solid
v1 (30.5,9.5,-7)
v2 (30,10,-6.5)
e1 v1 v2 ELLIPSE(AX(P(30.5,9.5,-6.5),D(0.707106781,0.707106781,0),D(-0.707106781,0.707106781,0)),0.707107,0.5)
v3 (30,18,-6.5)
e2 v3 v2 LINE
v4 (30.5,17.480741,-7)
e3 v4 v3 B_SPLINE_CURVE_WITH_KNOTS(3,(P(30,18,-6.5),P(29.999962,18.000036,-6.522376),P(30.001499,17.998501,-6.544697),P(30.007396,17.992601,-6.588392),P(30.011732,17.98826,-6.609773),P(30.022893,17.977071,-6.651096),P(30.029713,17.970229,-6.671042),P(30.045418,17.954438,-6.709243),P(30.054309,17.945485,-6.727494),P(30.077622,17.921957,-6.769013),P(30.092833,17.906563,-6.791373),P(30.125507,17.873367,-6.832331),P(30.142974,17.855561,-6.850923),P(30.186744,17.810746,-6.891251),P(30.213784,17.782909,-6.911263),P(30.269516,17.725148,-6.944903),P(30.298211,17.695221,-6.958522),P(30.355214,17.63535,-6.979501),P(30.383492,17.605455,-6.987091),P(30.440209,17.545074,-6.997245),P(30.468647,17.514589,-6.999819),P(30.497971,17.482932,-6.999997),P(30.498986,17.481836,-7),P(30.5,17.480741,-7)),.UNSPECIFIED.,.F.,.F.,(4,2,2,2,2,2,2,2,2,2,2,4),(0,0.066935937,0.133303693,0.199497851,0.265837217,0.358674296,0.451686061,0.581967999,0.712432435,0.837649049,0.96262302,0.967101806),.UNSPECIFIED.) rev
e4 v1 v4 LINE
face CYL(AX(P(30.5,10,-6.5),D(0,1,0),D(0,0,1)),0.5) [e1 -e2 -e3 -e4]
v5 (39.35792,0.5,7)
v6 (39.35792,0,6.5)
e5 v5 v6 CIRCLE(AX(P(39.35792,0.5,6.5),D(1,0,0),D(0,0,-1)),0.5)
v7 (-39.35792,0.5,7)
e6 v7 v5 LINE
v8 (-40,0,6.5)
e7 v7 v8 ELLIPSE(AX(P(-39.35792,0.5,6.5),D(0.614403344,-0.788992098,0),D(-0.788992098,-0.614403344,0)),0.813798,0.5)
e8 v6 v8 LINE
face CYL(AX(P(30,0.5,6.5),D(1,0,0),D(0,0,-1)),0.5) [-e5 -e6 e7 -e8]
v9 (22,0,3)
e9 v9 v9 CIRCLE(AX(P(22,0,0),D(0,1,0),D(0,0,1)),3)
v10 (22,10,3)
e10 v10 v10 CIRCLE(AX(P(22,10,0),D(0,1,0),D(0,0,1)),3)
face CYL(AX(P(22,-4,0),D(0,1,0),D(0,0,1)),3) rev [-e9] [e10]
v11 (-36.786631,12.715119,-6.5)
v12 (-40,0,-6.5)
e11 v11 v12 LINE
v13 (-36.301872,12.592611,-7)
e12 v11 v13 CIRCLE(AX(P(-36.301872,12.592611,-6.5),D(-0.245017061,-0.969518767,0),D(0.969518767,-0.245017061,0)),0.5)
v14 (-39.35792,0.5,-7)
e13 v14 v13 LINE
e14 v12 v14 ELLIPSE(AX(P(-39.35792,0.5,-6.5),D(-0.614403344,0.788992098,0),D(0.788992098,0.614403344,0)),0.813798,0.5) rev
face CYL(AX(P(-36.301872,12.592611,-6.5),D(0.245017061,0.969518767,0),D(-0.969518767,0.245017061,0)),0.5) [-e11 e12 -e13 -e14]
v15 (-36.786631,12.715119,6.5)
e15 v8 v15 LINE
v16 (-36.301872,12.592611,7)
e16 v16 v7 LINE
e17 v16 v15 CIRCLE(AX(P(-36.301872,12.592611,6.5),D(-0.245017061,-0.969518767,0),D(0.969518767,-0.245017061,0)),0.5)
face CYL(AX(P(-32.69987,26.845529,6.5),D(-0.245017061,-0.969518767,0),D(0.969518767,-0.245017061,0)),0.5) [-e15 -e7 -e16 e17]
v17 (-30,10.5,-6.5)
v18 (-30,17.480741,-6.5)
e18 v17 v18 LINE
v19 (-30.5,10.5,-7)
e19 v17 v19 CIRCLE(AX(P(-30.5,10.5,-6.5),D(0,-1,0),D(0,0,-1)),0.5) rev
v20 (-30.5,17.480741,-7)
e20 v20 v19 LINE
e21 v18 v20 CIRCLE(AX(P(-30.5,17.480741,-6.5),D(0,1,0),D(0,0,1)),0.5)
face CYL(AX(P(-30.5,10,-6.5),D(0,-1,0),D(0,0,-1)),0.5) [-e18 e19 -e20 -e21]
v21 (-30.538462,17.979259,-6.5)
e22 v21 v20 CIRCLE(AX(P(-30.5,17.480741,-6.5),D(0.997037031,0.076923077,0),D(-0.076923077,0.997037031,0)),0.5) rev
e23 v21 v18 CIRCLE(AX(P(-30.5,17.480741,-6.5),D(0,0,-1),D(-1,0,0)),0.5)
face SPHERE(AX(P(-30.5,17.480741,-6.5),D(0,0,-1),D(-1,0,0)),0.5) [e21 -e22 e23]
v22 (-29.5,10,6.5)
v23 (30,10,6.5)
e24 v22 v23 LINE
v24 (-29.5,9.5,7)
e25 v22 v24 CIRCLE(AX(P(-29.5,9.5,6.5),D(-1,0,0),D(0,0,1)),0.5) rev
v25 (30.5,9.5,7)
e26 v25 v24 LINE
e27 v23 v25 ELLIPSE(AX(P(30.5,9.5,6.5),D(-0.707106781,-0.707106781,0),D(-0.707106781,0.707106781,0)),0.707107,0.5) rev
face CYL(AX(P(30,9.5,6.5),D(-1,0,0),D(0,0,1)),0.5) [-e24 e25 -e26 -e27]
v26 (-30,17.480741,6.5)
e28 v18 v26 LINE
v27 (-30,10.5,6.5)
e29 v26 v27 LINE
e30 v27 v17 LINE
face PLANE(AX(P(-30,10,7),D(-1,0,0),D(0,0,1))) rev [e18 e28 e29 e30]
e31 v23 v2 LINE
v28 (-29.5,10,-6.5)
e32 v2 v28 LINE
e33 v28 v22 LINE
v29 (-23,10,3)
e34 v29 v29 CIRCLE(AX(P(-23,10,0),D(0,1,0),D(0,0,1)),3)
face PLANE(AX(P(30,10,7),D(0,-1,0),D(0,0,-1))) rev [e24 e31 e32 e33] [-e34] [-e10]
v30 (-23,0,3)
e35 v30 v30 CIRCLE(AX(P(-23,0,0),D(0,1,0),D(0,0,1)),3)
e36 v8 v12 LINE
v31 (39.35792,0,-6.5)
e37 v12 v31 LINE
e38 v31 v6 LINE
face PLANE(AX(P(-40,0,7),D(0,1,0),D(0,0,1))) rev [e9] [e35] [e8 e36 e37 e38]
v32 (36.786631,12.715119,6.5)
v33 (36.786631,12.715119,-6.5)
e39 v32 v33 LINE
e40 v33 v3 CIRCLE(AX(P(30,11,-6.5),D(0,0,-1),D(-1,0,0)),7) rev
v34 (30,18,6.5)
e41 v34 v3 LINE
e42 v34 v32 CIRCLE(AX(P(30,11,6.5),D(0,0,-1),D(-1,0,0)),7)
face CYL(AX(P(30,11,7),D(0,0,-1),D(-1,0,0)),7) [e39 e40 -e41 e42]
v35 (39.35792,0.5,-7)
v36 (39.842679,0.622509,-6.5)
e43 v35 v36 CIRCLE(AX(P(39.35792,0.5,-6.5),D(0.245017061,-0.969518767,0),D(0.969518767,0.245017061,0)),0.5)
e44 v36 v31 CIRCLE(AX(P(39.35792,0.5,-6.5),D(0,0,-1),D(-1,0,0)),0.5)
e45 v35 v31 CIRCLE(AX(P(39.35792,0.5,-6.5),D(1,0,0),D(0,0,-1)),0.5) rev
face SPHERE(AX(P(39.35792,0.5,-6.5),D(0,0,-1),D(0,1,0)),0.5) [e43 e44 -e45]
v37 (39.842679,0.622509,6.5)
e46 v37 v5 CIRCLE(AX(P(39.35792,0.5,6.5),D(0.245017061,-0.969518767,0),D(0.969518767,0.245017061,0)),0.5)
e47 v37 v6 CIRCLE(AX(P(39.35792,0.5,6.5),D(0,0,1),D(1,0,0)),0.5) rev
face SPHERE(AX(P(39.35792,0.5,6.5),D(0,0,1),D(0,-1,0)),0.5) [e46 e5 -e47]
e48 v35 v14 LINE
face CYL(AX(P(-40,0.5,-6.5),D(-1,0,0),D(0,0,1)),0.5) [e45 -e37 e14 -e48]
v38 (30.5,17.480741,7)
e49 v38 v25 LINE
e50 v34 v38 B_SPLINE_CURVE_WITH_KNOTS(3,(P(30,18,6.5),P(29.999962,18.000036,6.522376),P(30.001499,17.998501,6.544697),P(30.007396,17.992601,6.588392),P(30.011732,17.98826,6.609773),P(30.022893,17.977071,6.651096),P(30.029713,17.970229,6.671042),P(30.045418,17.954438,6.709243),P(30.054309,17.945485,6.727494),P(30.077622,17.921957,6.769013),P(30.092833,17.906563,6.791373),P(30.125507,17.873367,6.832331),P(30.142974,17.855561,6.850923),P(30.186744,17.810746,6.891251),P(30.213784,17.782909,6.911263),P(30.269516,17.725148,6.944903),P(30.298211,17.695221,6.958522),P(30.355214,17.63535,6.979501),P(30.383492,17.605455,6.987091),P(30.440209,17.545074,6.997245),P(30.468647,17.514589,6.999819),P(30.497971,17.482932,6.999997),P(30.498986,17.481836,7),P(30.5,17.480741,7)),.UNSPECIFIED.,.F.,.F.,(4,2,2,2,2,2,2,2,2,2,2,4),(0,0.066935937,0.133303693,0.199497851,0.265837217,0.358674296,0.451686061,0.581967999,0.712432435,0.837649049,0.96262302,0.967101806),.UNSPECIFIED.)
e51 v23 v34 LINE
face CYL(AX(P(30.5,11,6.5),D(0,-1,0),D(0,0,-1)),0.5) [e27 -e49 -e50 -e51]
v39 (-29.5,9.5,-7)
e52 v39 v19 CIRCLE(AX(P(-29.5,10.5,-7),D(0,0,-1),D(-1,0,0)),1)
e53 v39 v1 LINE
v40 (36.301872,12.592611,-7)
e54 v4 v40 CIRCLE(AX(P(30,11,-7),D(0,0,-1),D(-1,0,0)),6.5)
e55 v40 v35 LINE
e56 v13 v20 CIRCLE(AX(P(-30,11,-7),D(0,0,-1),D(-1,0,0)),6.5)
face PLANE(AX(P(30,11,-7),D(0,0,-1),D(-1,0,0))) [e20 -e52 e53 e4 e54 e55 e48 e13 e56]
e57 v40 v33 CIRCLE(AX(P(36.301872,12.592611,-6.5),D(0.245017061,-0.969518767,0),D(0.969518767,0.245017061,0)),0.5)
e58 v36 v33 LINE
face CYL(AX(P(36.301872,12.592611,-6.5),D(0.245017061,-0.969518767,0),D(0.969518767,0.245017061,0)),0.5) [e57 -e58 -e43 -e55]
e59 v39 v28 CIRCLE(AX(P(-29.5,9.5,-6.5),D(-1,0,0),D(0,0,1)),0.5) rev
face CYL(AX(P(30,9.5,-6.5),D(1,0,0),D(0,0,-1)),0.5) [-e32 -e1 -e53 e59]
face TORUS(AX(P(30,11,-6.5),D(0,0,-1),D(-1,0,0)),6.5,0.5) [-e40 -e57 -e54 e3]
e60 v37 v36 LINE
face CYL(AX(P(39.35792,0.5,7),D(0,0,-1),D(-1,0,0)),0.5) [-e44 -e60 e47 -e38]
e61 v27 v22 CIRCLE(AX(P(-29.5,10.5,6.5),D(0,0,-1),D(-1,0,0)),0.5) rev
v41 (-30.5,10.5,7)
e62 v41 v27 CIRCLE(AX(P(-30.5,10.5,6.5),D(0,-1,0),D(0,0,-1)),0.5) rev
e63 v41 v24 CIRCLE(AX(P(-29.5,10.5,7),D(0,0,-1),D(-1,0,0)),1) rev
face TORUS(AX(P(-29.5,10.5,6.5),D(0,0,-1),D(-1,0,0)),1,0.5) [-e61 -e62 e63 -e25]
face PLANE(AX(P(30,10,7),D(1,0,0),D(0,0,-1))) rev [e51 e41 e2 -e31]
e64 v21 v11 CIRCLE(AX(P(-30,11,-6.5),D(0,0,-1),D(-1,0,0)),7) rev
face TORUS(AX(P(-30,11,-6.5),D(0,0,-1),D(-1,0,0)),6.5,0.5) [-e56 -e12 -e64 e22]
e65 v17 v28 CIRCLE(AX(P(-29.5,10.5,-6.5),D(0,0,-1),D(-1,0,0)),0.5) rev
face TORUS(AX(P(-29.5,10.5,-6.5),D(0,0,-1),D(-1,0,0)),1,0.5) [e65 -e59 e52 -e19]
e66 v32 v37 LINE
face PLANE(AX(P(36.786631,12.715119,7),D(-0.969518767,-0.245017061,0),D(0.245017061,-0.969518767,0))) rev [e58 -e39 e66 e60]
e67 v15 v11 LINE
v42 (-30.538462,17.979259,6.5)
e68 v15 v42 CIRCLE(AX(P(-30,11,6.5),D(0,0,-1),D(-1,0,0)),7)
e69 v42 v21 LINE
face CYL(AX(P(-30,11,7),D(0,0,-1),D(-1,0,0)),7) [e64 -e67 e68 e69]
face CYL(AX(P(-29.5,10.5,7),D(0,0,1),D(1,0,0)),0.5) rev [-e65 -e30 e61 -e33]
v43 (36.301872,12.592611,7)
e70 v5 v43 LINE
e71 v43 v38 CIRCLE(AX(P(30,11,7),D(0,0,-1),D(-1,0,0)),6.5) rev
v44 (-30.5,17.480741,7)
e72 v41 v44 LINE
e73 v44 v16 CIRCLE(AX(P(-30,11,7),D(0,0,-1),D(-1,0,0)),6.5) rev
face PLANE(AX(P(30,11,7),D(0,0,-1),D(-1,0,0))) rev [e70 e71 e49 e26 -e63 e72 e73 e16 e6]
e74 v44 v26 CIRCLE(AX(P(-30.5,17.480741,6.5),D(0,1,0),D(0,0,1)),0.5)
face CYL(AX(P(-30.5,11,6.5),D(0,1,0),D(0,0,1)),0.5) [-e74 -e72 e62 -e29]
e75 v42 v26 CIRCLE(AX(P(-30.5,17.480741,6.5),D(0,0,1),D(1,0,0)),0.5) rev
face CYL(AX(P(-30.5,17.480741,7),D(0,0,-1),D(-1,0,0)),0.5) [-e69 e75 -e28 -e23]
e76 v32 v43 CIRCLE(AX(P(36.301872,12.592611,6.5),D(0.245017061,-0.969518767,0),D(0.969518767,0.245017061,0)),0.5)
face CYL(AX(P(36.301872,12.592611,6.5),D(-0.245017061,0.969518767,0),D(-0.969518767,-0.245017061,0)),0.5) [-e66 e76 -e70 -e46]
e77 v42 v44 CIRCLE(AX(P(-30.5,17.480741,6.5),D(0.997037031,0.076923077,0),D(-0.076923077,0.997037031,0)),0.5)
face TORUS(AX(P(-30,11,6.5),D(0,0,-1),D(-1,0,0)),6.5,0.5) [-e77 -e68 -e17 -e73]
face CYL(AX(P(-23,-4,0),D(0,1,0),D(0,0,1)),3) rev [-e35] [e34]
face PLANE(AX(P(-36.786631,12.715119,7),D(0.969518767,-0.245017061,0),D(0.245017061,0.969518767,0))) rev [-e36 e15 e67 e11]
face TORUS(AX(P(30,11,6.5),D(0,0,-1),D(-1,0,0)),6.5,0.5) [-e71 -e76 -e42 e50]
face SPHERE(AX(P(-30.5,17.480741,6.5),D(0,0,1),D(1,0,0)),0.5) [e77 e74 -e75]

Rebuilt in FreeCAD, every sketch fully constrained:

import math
import FreeCAD as App
import Part
import Sketcher

V = App.Vector


def edges_at(feature, points):
    """Names of the edges that pass closest to the given points."""
    edges = feature.Shape.Edges
    near = lambda p: min(range(len(edges)), key=lambda i: edges[i].distToShape(Part.Vertex(*p))[0])
    return sorted({f"Edge{near(p) + 1}" for p in points})

doc = App.newDocument("Part")
params = doc.addObject("Spreadsheet::Sheet", "Params")
for row, (alias, value) in enumerate([
    ("sketch1_radius", "7 mm"),
    ("sketch1_width", "80 mm"),
    ("sketch1_width2", "60 mm"),
    ("sketch1_height", "8 mm"),
    ("pad1_length", "14 mm"),
    ("sketch2_diameter", "6 mm"),
    ("pocket1_length", "14 mm"),
    ("fillet_radius", "0.5 mm"),
], start=1):
    params.set(f"A{row}", alias)
    params.set(f"B{row}", "=" + value)
    params.setAlias(f"B{row}", alias)

body = doc.addObject("PartDesign::Body", "Body")

# Sketch on XY plane
sketch1 = body.newObject("Sketcher::SketchObject", "Sketch")
sketch1.AttachmentSupport = (doc.getObject("XY_Plane"), [""])
sketch1.MapMode = "FlatFace"
sketch1.addGeometry(Part.LineSegment(V(-40, 0, 0), V(40, 0, 0)), False)
sketch1.addGeometry(Part.LineSegment(V(40, 0, 0), V(37, 13, 0)), False)
sketch1.addGeometry(Part.ArcOfCircle(Part.Circle(V(30, 11, 0), V(0, 0, 1), 7), math.radians(14), math.radians(90)), False)
sketch1.addGeometry(Part.LineSegment(V(30, 18, 0), V(30, 10, 0)), False)
sketch1.addGeometry(Part.LineSegment(V(30, 10, 0), V(-30, 10, 0)), False)
sketch1.addGeometry(Part.LineSegment(V(-30, 10, 0), V(-30, 18, 0)), False)
sketch1.addGeometry(Part.ArcOfCircle(Part.Circle(V(-30, 11, 0), V(0, 0, 1), 7), math.radians(90), math.radians(166)), False)
sketch1.addGeometry(Part.LineSegment(V(-37, 13, 0), V(-40, 0, 0)), False)
sketch1.addConstraint(Sketcher.Constraint("Coincident", 0, 2, 1, 1))
sketch1.addConstraint(Sketcher.Constraint("Tangent", 1, 2, 2, 1))
sketch1.addConstraint(Sketcher.Constraint("Coincident", 2, 2, 3, 1))
sketch1.addConstraint(Sketcher.Constraint("Coincident", 3, 2, 4, 1))
sketch1.addConstraint(Sketcher.Constraint("Coincident", 4, 2, 5, 1))
sketch1.addConstraint(Sketcher.Constraint("Coincident", 5, 2, 6, 1))
sketch1.addConstraint(Sketcher.Constraint("Tangent", 6, 2, 7, 1))
sketch1.addConstraint(Sketcher.Constraint("Coincident", 7, 2, 0, 1))
sketch1.addConstraint(Sketcher.Constraint("Horizontal", 0))
sketch1.addConstraint(Sketcher.Constraint("Vertical", 3))
sketch1.addConstraint(Sketcher.Constraint("Horizontal", 4))
sketch1.addConstraint(Sketcher.Constraint("Vertical", 5))
sketch1.addConstraint(Sketcher.Constraint("Equal", 2, 6))
sketch1.addConstraint(Sketcher.Constraint("Symmetric", 0, 2, 7, 2, -1, 1))
sketch1.addConstraint(Sketcher.Constraint("Symmetric", 2, 3, 6, 3, -2))
sketch1.addConstraint(Sketcher.Constraint("Vertical", 6, 3, 4, 2))
sketch1.addConstraint(Sketcher.Constraint("Radius", 2, 7.0))
sketch1.addConstraint(Sketcher.Constraint("DistanceX", 0, 1, 0, 2, 80.0))
sketch1.addConstraint(Sketcher.Constraint("DistanceX", 4, 2, 4, 1, 60.0))
sketch1.addConstraint(Sketcher.Constraint("DistanceY", 3, 2, 3, 1, 8.0))
sketch1.addConstraint(Sketcher.Constraint("DistanceX", -1, 1, 2, 3, 30.0))
sketch1.addConstraint(Sketcher.Constraint("DistanceY", -1, 1, 2, 3, 11.0))
sketch1.setExpression("Constraints[16]", "Params.sketch1_radius")
sketch1.setExpression("Constraints[17]", "Params.sketch1_width")
sketch1.setExpression("Constraints[18]", "Params.sketch1_width2")
sketch1.setExpression("Constraints[19]", "Params.sketch1_height")
pad1 = body.newObject("PartDesign::Pad", "Pad")
pad1.Profile = sketch1
pad1.setExpression("Length", "Params.pad1_length")
pad1.Midplane = True

# Sketch on XZ plane
sketch2 = body.newObject("Sketcher::SketchObject", "Sketch001")
sketch2.AttachmentSupport = (doc.getObject("XZ_Plane"), [""])
sketch2.MapMode = "FlatFace"
sketch2.AttachmentOffset = App.Placement(V(0, 0, -10), App.Rotation())
sketch2.addGeometry(Part.Circle(V(-23, 0, 0), V(0, 0, 1), 3), False)
sketch2.addGeometry(Part.Circle(V(22, 0, 0), V(0, 0, 1), 3), False)
sketch2.addConstraint(Sketcher.Constraint("Equal", 0, 1))
sketch2.addConstraint(Sketcher.Constraint("PointOnObject", 0, 3, -1))
sketch2.addConstraint(Sketcher.Constraint("PointOnObject", 1, 3, -1))
sketch2.addConstraint(Sketcher.Constraint("Diameter", 0, 6.0))
sketch2.addConstraint(Sketcher.Constraint("DistanceX", 0, 3, -1, 1, 23.0))
sketch2.addConstraint(Sketcher.Constraint("DistanceX", -1, 1, 1, 3, 22.0))
sketch2.setExpression("Constraints[3]", "Params.sketch2_diameter")
pocket1 = body.newObject("PartDesign::Pocket", "Pocket")
pocket1.Profile = sketch2
pocket1.setExpression("Length", "Params.pocket1_length")
pocket1.Reversed = True
doc.recompute()

fillet = body.newObject("PartDesign::Fillet", "Fillet")
fillet.Base = (pocket1, edges_at(pocket1, [
    (34.301, 16.523, -7),
    (38.393, 6.358, -7),
    (0, 0, -7),
    (-38.393, 6.358, -7),
    (38.393, 6.358, 7),
    (-30, 18, 0),
    (-30, 10, 0),
    (40, 0, 0),
    (34.301, 16.523, 7),
    (30, 14, 7),
    (0, 10, 7),
    (-30, 14, 7),
    (-34.301, 16.523, 7),
    (-38.393, 6.358, 7),
    (-34.301, 16.523, -7),
    (0, 0, 7),
    (-30, 14, -7),
    (0, 10, -7),
    (30, 14, -7),
]))
fillet.setExpression("Radius", "Params.fillet_radius")

doc.recompute()
